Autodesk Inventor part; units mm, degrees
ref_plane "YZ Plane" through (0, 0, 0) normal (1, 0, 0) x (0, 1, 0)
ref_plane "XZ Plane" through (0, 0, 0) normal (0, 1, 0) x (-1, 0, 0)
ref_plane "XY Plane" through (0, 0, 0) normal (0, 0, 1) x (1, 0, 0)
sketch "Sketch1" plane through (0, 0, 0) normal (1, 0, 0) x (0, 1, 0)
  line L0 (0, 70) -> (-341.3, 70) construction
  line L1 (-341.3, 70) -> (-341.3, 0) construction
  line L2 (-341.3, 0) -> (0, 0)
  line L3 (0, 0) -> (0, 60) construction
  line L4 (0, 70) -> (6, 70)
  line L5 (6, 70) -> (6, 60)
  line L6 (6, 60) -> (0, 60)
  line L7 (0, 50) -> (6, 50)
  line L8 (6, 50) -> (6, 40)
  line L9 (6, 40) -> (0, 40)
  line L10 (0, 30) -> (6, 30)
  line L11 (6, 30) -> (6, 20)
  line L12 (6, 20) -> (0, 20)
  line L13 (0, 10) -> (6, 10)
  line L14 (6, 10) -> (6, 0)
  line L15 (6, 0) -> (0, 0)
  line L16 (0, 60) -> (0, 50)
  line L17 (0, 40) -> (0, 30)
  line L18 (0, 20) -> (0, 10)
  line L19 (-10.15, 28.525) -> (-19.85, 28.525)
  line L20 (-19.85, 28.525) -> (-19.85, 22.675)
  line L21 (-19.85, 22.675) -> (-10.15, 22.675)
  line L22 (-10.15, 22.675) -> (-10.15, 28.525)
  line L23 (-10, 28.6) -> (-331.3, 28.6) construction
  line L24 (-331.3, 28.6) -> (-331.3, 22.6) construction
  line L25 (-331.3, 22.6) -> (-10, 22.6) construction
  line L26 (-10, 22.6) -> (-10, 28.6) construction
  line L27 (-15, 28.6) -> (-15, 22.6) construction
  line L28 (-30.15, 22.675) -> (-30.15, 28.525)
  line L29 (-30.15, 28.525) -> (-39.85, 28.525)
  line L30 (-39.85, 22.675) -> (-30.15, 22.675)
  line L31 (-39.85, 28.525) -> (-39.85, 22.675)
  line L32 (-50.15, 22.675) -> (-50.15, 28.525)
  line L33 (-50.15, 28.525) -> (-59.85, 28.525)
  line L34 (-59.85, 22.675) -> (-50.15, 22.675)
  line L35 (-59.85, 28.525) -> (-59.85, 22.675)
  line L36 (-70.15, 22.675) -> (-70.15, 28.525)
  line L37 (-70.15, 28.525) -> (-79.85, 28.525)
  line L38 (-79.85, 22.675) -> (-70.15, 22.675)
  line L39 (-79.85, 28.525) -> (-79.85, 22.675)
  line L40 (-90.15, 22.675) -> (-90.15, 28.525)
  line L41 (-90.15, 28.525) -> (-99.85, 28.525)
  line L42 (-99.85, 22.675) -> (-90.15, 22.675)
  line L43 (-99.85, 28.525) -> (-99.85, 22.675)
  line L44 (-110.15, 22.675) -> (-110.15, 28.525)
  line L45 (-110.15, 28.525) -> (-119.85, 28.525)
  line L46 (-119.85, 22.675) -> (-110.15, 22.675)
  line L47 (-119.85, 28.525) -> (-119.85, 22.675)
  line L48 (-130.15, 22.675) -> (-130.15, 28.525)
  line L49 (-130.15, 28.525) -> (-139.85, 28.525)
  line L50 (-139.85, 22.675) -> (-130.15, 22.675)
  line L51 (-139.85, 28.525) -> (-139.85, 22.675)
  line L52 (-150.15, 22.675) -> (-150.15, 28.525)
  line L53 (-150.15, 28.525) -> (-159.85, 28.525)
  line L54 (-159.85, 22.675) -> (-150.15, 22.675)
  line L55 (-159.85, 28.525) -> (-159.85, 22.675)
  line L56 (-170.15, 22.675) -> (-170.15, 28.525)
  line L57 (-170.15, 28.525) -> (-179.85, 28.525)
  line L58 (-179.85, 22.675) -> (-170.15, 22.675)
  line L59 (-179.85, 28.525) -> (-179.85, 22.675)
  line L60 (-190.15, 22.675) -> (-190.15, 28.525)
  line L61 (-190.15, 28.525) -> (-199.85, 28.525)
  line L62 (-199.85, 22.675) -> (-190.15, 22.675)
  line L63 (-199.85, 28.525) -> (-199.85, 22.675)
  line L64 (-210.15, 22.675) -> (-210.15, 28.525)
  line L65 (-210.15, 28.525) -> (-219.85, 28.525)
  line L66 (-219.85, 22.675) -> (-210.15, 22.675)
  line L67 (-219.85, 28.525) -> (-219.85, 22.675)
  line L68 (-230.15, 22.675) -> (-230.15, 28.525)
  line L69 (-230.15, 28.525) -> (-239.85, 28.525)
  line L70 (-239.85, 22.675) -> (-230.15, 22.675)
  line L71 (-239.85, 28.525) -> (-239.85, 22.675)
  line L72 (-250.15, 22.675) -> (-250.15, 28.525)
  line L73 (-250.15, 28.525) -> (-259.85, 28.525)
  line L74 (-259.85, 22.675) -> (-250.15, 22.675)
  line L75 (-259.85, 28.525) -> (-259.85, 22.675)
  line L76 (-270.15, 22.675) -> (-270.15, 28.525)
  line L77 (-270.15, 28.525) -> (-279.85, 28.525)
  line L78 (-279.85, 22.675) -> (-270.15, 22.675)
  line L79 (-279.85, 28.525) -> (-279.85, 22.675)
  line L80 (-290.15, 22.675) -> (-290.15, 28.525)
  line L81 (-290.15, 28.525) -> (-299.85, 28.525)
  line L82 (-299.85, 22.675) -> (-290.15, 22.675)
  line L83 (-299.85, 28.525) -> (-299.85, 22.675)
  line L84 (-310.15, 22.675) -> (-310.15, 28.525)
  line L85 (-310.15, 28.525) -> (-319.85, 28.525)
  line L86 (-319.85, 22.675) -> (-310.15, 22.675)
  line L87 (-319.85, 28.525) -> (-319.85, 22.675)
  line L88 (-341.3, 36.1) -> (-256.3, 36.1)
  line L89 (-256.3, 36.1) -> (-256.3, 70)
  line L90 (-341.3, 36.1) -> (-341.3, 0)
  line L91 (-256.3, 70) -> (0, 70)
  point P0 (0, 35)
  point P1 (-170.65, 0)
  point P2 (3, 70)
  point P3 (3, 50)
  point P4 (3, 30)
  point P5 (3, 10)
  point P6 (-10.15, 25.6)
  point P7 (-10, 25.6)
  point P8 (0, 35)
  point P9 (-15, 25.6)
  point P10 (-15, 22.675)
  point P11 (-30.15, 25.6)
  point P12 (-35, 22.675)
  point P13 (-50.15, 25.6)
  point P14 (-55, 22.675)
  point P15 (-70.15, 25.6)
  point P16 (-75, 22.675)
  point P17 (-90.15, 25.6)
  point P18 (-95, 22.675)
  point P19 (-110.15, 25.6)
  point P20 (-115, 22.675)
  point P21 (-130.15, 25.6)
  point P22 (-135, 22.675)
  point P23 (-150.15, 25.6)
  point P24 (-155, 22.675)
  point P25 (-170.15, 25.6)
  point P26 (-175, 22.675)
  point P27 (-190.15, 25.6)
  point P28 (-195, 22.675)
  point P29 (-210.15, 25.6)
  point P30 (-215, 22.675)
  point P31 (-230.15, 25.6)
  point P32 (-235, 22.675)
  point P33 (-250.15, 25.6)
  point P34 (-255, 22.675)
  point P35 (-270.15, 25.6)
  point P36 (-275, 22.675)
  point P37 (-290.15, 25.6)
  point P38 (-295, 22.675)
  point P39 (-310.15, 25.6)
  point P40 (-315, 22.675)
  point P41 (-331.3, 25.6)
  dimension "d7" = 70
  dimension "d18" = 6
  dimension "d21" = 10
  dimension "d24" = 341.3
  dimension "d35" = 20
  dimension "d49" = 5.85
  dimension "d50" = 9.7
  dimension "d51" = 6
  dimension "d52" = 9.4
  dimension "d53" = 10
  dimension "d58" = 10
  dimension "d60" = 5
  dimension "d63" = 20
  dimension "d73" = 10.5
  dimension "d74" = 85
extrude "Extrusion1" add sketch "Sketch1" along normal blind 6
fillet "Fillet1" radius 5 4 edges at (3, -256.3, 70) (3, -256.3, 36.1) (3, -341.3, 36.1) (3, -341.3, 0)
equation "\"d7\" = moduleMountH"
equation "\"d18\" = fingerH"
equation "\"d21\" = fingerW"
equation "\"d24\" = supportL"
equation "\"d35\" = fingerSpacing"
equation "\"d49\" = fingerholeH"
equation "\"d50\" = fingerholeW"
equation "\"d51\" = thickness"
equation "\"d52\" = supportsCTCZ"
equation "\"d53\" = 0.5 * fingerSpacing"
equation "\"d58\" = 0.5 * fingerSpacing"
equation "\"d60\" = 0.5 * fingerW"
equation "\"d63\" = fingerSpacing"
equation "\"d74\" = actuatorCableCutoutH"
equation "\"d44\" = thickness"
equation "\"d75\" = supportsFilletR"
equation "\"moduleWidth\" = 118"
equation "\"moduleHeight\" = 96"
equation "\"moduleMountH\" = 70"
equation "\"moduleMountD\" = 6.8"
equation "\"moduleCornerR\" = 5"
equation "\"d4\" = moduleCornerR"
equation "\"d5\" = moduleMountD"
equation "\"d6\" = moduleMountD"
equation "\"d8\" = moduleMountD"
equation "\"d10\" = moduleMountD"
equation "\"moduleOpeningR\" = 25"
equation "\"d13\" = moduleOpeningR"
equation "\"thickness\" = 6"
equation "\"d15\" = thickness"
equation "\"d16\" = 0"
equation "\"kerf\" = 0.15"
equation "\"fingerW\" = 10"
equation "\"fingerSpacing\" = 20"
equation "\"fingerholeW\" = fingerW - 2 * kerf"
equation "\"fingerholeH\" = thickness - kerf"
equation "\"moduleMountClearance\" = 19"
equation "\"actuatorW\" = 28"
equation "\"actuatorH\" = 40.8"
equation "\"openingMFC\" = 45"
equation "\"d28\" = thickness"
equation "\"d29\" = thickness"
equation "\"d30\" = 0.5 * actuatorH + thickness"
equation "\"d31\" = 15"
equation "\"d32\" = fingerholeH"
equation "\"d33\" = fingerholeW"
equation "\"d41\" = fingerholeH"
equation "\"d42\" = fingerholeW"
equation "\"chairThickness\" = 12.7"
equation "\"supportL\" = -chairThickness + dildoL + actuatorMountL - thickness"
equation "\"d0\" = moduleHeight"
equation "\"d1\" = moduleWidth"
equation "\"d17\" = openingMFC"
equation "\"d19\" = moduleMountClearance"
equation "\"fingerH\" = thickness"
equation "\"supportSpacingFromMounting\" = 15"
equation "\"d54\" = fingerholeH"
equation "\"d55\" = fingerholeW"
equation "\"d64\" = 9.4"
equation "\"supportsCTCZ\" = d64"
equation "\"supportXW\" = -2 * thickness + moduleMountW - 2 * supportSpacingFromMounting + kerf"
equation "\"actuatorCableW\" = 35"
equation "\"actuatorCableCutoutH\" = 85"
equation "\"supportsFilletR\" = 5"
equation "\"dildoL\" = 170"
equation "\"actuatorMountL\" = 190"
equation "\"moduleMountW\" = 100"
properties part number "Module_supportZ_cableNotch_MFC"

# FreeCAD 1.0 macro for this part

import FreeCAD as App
import Part
import Sketcher

V = App.Vector


def edges_at(feature, points):
    """Names of the edges that pass closest to the given points."""
    edges = feature.Shape.Edges
    near = lambda p: min(range(len(edges)), key=lambda i: edges[i].distToShape(Part.Vertex(*p))[0])
    return sorted({f"Edge{near(p) + 1}" for p in points})


def add_polygon(sketch, points):
    """Adds a closed chain of lines whose ends are joined by coincident constraints."""
    first, n = sketch.GeometryCount, len(points)
    for a, b in zip(points, points[1:] + points[:1]):
        sketch.addGeometry(Part.LineSegment(App.Vector(*a, 0), App.Vector(*b, 0)), False)
    for i in range(n):
        sketch.addConstraint(Sketcher.Constraint("Coincident", first + i, 2, first + (i + 1) % n, 1))

doc = App.newDocument("Part")
params = doc.addObject("Spreadsheet::Sheet", "Params")
for row, (alias, value) in enumerate([
    ("sketch1_width", "6 mm"),
    ("sketch1_width2", "85 mm"),
    ("sketch1_height", "10 mm"),
    ("sketch1_width3", "9.7 mm"),
    ("sketch1_height2", "5.85 mm"),
    ("pad1_length", "6 mm"),
    ("fillet_radius", "5 mm"),
], start=1):
    params.set(f"A{row}", alias)
    params.set(f"B{row}", "=" + value)
    params.setAlias(f"B{row}", alias)

body = doc.addObject("PartDesign::Body", "Body")

sketch1 = body.newObject("Sketcher::SketchObject", "Sketch")
sketch1.AttachmentSupport = (doc.getObject("YZ_Plane"), [""])
sketch1.MapMode = "FlatFace"
add_polygon(sketch1, [(-341, 36), (-341, 0), (6, 0), (6, 10), (0, 10), (0, 20), (6, 20), (6, 30), (0, 30), (0, 40), (6, 40), (6, 50), (0, 50), (0, 60), (6, 60), (6, 70), (-256, 70), (-256, 36)])
add_polygon(sketch1, [(-310, 29), (-310, 23), (-320, 23), (-320, 29)])
add_polygon(sketch1, [(-290, 29), (-290, 23), (-300, 23), (-300, 29)])
add_polygon(sketch1, [(-270, 29), (-270, 23), (-280, 23), (-280, 29)])
add_polygon(sketch1, [(-250, 29), (-250, 23), (-260, 23), (-260, 29)])
add_polygon(sketch1, [(-230, 29), (-230, 23), (-240, 23), (-240, 29)])
add_polygon(sketch1, [(-210, 29), (-210, 23), (-220, 23), (-220, 29)])
add_polygon(sketch1, [(-190, 29), (-190, 23), (-200, 23), (-200, 29)])
add_polygon(sketch1, [(-170, 29), (-170, 23), (-180, 23), (-180, 29)])
add_polygon(sketch1, [(-150, 29), (-150, 23), (-160, 23), (-160, 29)])
add_polygon(sketch1, [(-130, 29), (-130, 23), (-140, 23), (-140, 29)])
add_polygon(sketch1, [(-110, 29), (-110, 23), (-120, 23), (-120, 29)])
add_polygon(sketch1, [(-90, 29), (-90, 23), (-100, 23), (-100, 29)])
add_polygon(sketch1, [(-70, 29), (-70, 23), (-80, 23), (-80, 29)])
add_polygon(sketch1, [(-50, 29), (-50, 23), (-60, 23), (-60, 29)])
add_polygon(sketch1, [(-30, 29), (-30, 23), (-40, 23), (-40, 29)])
add_polygon(sketch1, [(-20, 29), (-10, 29), (-10, 23), (-20, 23)])
sketch1.addConstraint([
    Sketcher.Constraint("Vertical", 0),
    Sketcher.Constraint("Horizontal", 1),
    Sketcher.Constraint("Vertical", 2),
    Sketcher.Constraint("Horizontal", 3),
    Sketcher.Constraint("Vertical", 4),
    Sketcher.Constraint("Horizontal", 5),
    Sketcher.Constraint("Vertical", 6),
    Sketcher.Constraint("Horizontal", 7),
    Sketcher.Constraint("Vertical", 8),
    Sketcher.Constraint("Horizontal", 9),
    Sketcher.Constraint("Vertical", 10),
    Sketcher.Constraint("Horizontal", 11),
    Sketcher.Constraint("Vertical", 12),
    Sketcher.Constraint("Horizontal", 13),
    Sketcher.Constraint("Vertical", 14),
    Sketcher.Constraint("Horizontal", 15),
    Sketcher.Constraint("Vertical", 16),
    Sketcher.Constraint("Horizontal", 17),
    Sketcher.Constraint("Vertical", 18),
    Sketcher.Constraint("Horizontal", 19),
    Sketcher.Constraint("Vertical", 20),
    Sketcher.Constraint("Horizontal", 21),
    Sketcher.Constraint("Vertical", 22),
    Sketcher.Constraint("Horizontal", 23),
    Sketcher.Constraint("Vertical", 24),
    Sketcher.Constraint("Horizontal", 25),
    Sketcher.Constraint("Vertical", 26),
    Sketcher.Constraint("Horizontal", 27),
    Sketcher.Constraint("Vertical", 28),
    Sketcher.Constraint("Horizontal", 29),
    Sketcher.Constraint("Vertical", 30),
    Sketcher.Constraint("Horizontal", 31),
    Sketcher.Constraint("Vertical", 32),
    Sketcher.Constraint("Horizontal", 33),
    Sketcher.Constraint("Vertical", 34),
    Sketcher.Constraint("Horizontal", 35),
    Sketcher.Constraint("Vertical", 36),
    Sketcher.Constraint("Horizontal", 37),
    Sketcher.Constraint("Vertical", 38),
    Sketcher.Constraint("Horizontal", 39),
    Sketcher.Constraint("Vertical", 40),
    Sketcher.Constraint("Horizontal", 41),
    Sketcher.Constraint("Vertical", 42),
    Sketcher.Constraint("Horizontal", 43),
    Sketcher.Constraint("Vertical", 44),
    Sketcher.Constraint("Horizontal", 45),
    Sketcher.Constraint("Vertical", 46),
    Sketcher.Constraint("Horizontal", 47),
    Sketcher.Constraint("Vertical", 48),
    Sketcher.Constraint("Horizontal", 49),
    Sketcher.Constraint("Vertical", 50),
    Sketcher.Constraint("Horizontal", 51),
    Sketcher.Constraint("Vertical", 52),
    Sketcher.Constraint("Horizontal", 53),
    Sketcher.Constraint("Vertical", 54),
    Sketcher.Constraint("Horizontal", 55),
    Sketcher.Constraint("Vertical", 56),
    Sketcher.Constraint("Horizontal", 57),
    Sketcher.Constraint("Vertical", 58),
    Sketcher.Constraint("Horizontal", 59),
    Sketcher.Constraint("Vertical", 60),
    Sketcher.Constraint("Horizontal", 61),
    Sketcher.Constraint("Vertical", 62),
    Sketcher.Constraint("Horizontal", 63),
    Sketcher.Constraint("Vertical", 64),
    Sketcher.Constraint("Horizontal", 65),
    Sketcher.Constraint("Vertical", 66),
    Sketcher.Constraint("Horizontal", 67),
    Sketcher.Constraint("Vertical", 68),
    Sketcher.Constraint("Horizontal", 69),
    Sketcher.Constraint("Vertical", 70),
    Sketcher.Constraint("Horizontal", 71),
    Sketcher.Constraint("Vertical", 72),
    Sketcher.Constraint("Horizontal", 73),
    Sketcher.Constraint("Vertical", 74),
    Sketcher.Constraint("Horizontal", 75),
    Sketcher.Constraint("Vertical", 76),
    Sketcher.Constraint("Horizontal", 77),
    Sketcher.Constraint("Horizontal", 78),
    Sketcher.Constraint("Vertical", 79),
    Sketcher.Constraint("Horizontal", 80),
    Sketcher.Constraint("Vertical", 81),
    Sketcher.Constraint("PointOnObject", 0, 2, -1),
    Sketcher.Constraint("PointOnObject", 3, 2, -2),
    Sketcher.Constraint("PointOnObject", 7, 2, -2),
    Sketcher.Constraint("PointOnObject", 11, 2, -2),
    Sketcher.Constraint("Horizontal", 19, 2, 22, 2),
    Sketcher.Constraint("Horizontal", 21, 2, 24, 2),
    Sketcher.Constraint("Horizontal", 23, 2, 26, 2),
    Sketcher.Constraint("Horizontal", 25, 2, 28, 2),
    Sketcher.Constraint("Horizontal", 27, 2, 30, 2),
    Sketcher.Constraint("Horizontal", 29, 2, 32, 2),
    Sketcher.Constraint("Horizontal", 31, 2, 34, 2),
    Sketcher.Constraint("Horizontal", 33, 2, 36, 2),
    Sketcher.Constraint("Horizontal", 35, 2, 38, 2),
    Sketcher.Constraint("Horizontal", 37, 2, 40, 2),
    Sketcher.Constraint("Horizontal", 39, 2, 42, 2),
    Sketcher.Constraint("Horizontal", 41, 2, 44, 2),
    Sketcher.Constraint("Horizontal", 43, 2, 46, 2),
    Sketcher.Constraint("Horizontal", 45, 2, 48, 2),
    Sketcher.Constraint("Horizontal", 47, 2, 50, 2),
    Sketcher.Constraint("Horizontal", 49, 2, 52, 2),
    Sketcher.Constraint("Horizontal", 51, 2, 54, 2),
    Sketcher.Constraint("Horizontal", 53, 2, 56, 2),
    Sketcher.Constraint("Horizontal", 55, 2, 58, 2),
    Sketcher.Constraint("Horizontal", 57, 2, 60, 2),
    Sketcher.Constraint("Horizontal", 59, 2, 62, 2),
    Sketcher.Constraint("Horizontal", 61, 2, 64, 2),
    Sketcher.Constraint("Horizontal", 63, 2, 66, 2),
    Sketcher.Constraint("Horizontal", 65, 2, 68, 2),
    Sketcher.Constraint("Horizontal", 67, 2, 70, 2),
    Sketcher.Constraint("Horizontal", 69, 2, 72, 2),
    Sketcher.Constraint("Horizontal", 71, 2, 74, 2),
    Sketcher.Constraint("Horizontal", 73, 2, 76, 2),
    Sketcher.Constraint("Horizontal", 77, 2, 78, 2),
    Sketcher.Constraint("Horizontal", 75, 2, 79, 2),
    Sketcher.Constraint("Vertical", 2, 2, 5, 2),
    Sketcher.Constraint("Vertical", 6, 2, 9, 2),
    Sketcher.Constraint("Vertical", 10, 2, 13, 2),
    Sketcher.Constraint("Equal", 21, 23),
    Sketcher.Constraint("Equal", 25, 27),
    Sketcher.Constraint("Equal", 29, 31),
    Sketcher.Constraint("Equal", 33, 35),
    Sketcher.Constraint("Equal", 37, 39),
    Sketcher.Constraint("Equal", 41, 43),
    Sketcher.Constraint("Equal", 45, 47),
    Sketcher.Constraint("Equal", 49, 51),
    Sketcher.Constraint("Equal", 53, 55),
    Sketcher.Constraint("Equal", 57, 59),
    Sketcher.Constraint("Equal", 61, 63),
    Sketcher.Constraint("Equal", 65, 67),
    Sketcher.Constraint("Equal", 69, 71),
    Sketcher.Constraint("Equal", 73, 75),
    Sketcher.Constraint("Equal", 77, 78),
    Sketcher.Constraint("Equal", 2, 4),
    Sketcher.Constraint("Equal", 4, 6),
    Sketcher.Constraint("Equal", 6, 8),
    Sketcher.Constraint("Equal", 8, 10),
    Sketcher.Constraint("Equal", 10, 12),
    Sketcher.Constraint("Equal", 12, 14),
    Sketcher.Constraint("DistanceX", 3, 2, 3, 1, 6.0),
    Sketcher.Constraint("DistanceX", 17, 2, 17, 1, 85.0),
    Sketcher.Constraint("DistanceY", 2, 1, 2, 2, 10.0),
    Sketcher.Constraint("DistanceX", 19, 2, 19, 1, 9.7),
    Sketcher.Constraint("DistanceY", 18, 2, 18, 1, 5.85),
    Sketcher.Constraint("DistanceX", 0, 2, -1, 1, 341.3),
    Sketcher.Constraint("DistanceY", 0, 2, 0, 1, 36.1),
    Sketcher.Constraint("DistanceX", 18, 2, -1, 1, 310.15),
    Sketcher.Constraint("DistanceX", 22, 2, -1, 1, 290.15),
    Sketcher.Constraint("DistanceX", 26, 2, -1, 1, 270.15),
    Sketcher.Constraint("DistanceX", 30, 2, -1, 1, 250.15),
    Sketcher.Constraint("DistanceX", 34, 2, -1, 1, 230.15),
    Sketcher.Constraint("DistanceX", 38, 2, -1, 1, 210.15),
    Sketcher.Constraint("DistanceX", 42, 2, -1, 1, 190.15),
    Sketcher.Constraint("DistanceX", 46, 2, -1, 1, 170.15),
    Sketcher.Constraint("DistanceX", 50, 2, -1, 1, 150.15),
    Sketcher.Constraint("DistanceX", 54, 2, -1, 1, 130.15),
    Sketcher.Constraint("DistanceX", 58, 2, -1, 1, 110.15),
    Sketcher.Constraint("DistanceX", 62, 2, -1, 1, 90.15),
    Sketcher.Constraint("DistanceX", 66, 2, -1, 1, 70.15),
    Sketcher.Constraint("DistanceX", 70, 2, -1, 1, 50.15),
    Sketcher.Constraint("DistanceX", 74, 2, -1, 1, 30.15),
    Sketcher.Constraint("DistanceX", 78, 2, -1, 1, 10.15),
    Sketcher.Constraint("DistanceY", -1, 1, 18, 2, 22.675),
])
sketch1.setExpression("Constraints[222]", "Params.sketch1_width")
sketch1.setExpression("Constraints[223]", "Params.sketch1_width2")
sketch1.setExpression("Constraints[224]", "Params.sketch1_height")
sketch1.setExpression("Constraints[225]", "Params.sketch1_width3")
sketch1.setExpression("Constraints[226]", "Params.sketch1_height2")
pad1 = body.newObject("PartDesign::Pad", "Pad")
pad1.Profile = sketch1
pad1.setExpression("Length", "Params.pad1_length")
doc.recompute()

fillet = body.newObject("PartDesign::Fillet", "Fillet")
fillet.Base = (pad1, edges_at(pad1, [
    (3, -256.3, 70),
    (3, -256.3, 36.1),
    (3, -341.3, 36.1),
    (3, -341.3, 0),
]))
fillet.setExpression("Radius", "Params.fillet_radius")

doc.recompute()
